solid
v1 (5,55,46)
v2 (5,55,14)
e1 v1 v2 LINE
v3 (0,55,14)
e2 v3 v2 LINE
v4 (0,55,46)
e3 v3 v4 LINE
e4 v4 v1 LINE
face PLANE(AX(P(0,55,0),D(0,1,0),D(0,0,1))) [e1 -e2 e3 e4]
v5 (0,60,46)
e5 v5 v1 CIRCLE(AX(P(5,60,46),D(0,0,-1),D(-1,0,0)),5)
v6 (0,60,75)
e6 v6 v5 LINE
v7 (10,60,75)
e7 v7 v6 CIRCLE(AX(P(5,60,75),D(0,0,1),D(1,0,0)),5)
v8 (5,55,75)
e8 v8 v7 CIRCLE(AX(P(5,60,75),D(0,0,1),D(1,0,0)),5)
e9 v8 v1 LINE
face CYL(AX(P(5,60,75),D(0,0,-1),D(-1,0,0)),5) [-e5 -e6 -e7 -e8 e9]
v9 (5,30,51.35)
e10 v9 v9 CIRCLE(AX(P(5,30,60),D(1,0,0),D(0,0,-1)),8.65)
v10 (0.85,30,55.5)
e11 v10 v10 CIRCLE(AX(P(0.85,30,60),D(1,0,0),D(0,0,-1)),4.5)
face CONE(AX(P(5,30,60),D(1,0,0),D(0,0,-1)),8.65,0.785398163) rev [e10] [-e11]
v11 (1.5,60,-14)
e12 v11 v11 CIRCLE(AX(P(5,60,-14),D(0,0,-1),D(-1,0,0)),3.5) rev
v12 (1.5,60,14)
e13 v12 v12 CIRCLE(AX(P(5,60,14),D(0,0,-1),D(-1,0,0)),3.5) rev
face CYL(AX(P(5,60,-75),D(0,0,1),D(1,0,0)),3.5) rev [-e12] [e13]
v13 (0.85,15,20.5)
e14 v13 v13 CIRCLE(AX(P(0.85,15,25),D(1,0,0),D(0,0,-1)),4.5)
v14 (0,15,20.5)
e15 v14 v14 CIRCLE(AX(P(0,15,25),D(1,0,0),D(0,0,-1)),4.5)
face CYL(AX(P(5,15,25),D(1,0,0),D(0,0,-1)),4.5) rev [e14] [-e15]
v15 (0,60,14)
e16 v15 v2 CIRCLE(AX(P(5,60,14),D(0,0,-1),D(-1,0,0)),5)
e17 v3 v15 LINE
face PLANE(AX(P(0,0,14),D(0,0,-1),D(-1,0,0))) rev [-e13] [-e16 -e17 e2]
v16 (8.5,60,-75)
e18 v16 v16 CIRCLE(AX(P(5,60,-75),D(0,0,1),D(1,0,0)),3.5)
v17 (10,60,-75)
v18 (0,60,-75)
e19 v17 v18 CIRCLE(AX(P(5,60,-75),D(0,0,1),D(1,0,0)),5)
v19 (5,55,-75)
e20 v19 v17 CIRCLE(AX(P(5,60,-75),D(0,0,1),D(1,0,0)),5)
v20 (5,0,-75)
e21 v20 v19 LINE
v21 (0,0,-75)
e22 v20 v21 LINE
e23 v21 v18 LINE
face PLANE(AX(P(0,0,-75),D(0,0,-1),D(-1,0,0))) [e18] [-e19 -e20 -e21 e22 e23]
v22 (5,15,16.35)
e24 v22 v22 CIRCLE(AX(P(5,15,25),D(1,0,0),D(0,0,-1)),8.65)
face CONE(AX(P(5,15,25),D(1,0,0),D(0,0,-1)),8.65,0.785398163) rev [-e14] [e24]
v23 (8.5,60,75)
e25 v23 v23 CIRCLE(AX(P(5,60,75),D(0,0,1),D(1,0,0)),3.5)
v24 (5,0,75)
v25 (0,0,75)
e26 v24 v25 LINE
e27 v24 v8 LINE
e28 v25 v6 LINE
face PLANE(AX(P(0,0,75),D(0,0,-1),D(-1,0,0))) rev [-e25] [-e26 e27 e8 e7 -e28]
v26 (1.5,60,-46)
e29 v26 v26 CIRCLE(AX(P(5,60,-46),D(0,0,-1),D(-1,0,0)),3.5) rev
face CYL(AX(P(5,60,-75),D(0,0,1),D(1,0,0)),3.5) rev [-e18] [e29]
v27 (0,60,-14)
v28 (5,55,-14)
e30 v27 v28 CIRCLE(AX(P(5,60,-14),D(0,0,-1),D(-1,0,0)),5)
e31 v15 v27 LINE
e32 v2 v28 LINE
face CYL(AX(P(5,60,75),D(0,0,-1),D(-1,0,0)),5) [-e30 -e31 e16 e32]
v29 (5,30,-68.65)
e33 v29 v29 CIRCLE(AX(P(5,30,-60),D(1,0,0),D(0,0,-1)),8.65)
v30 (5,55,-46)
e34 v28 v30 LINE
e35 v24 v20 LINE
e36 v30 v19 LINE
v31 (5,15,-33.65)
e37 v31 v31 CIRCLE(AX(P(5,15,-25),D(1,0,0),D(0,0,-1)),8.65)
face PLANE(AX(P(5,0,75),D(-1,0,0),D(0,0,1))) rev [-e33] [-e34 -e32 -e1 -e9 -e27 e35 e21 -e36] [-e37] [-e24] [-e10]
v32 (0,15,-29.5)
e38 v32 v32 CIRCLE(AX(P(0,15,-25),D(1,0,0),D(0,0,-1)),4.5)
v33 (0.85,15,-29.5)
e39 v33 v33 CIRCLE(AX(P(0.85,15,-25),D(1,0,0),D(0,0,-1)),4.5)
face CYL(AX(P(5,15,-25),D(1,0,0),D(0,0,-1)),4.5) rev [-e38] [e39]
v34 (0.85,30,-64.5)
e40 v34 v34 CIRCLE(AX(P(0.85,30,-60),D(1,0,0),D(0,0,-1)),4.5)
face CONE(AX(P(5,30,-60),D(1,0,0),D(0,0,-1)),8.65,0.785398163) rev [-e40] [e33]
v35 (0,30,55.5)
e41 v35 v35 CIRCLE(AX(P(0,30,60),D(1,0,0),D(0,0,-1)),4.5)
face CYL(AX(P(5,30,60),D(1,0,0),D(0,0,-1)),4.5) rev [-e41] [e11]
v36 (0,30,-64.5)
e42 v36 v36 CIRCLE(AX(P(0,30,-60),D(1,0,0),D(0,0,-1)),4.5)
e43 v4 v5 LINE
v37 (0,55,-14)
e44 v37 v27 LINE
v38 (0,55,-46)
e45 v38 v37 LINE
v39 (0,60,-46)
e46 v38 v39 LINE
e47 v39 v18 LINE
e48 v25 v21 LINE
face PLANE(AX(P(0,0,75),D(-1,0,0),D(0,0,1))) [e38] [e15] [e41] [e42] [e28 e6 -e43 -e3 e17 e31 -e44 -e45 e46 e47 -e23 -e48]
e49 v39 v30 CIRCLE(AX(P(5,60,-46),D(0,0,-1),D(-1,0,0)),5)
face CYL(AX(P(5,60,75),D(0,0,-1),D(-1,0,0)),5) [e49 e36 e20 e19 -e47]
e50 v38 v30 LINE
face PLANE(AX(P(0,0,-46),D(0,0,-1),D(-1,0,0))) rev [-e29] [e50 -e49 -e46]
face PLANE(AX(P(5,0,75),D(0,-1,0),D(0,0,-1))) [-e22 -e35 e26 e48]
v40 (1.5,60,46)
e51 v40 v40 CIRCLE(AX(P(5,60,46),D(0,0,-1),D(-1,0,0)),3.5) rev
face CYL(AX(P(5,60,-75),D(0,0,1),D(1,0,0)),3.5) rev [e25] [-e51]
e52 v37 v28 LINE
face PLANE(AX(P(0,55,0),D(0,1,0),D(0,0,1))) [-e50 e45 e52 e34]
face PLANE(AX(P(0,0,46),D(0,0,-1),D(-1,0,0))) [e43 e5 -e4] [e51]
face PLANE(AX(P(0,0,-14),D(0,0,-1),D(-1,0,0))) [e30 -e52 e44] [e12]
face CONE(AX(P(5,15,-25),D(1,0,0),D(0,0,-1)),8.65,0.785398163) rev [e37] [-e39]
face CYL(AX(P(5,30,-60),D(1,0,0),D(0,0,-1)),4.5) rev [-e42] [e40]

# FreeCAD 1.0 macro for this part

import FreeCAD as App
import Part
import Sketcher

V = App.Vector
Q = App.Units.Quantity


def add_polygon(sketch, points):
    """Adds a closed chain of lines whose ends are joined by coincident constraints."""
    first, n = sketch.GeometryCount, len(points)
    for a, b in zip(points, points[1:] + points[:1]):
        sketch.addGeometry(Part.LineSegment(App.Vector(*a, 0), App.Vector(*b, 0)), False)
    for i in range(n):
        sketch.addConstraint(Sketcher.Constraint("Coincident", first + i, 2, first + (i + 1) % n, 1))

doc = App.newDocument("Part")
body = doc.addObject("PartDesign::Body", "Body")

sketch1 = body.newObject("Sketcher::SketchObject", "Sketch")
sketch1.AttachmentSupport = (doc.getObject("XY_Plane"), [""])
sketch1.MapMode = "FlatFace"
add_polygon(sketch1, [(0, 60), (0, 0), (5, 0), (5, 60)])
sketch1.addConstraint([
    Sketcher.Constraint("Vertical", 0),
    Sketcher.Constraint("Horizontal", 1),
    Sketcher.Constraint("Vertical", 2),
    Sketcher.Constraint("Horizontal", 3),
    Sketcher.Constraint("Coincident", 0, 2, -1, 1),
    Sketcher.Constraint("DistanceX", 1, 1, 1, 2, 5.0),
    Sketcher.Constraint("DistanceY", 0, 2, 0, 1, 60.0),
])
pad1 = body.newObject("PartDesign::Pad", "Pad")
pad1.Profile = sketch1
pad1.Length = 150
pad1.Midplane = True

sketch2 = body.newObject("Sketcher::SketchObject", "Sketch001")
sketch2.AttachmentSupport = (doc.getObject("XY_Plane"), [""])
sketch2.MapMode = "FlatFace"
sketch2.AttachmentOffset = App.Placement(V(0, 0, 75), App.Rotation())
sketch2.addGeometry(Part.Circle(V(5, 60, 0), V(0, 0, 1), 5), False)
sketch2.addConstraint([
    Sketcher.Constraint("Diameter", 0, 10.0),
    Sketcher.Constraint("DistanceX", -1, 1, 0, 3, 5.0),
    Sketcher.Constraint("DistanceY", -1, 1, 0, 3, 60.0),
])

sketch3 = body.newObject("Sketcher::SketchObject", "Sketch002")
sketch3.AttachmentSupport = (doc.getObject("XZ_Plane"), [""])
sketch3.MapMode = "FlatFace"
sketch3.AttachmentOffset = App.Placement(V(0, 0, -60), App.Rotation())
sketch3.addGeometry(Part.LineSegment(V(5, 75, 0), V(5, -75, 0)), False)
sketch3.addConstraint([
    Sketcher.Constraint("Vertical", 0),
    Sketcher.Constraint("DistanceY", 0, 2, 0, 1, 150.0),
    Sketcher.Constraint("DistanceX", -1, 1, 0, 1, 5.0),
    Sketcher.Constraint("DistanceY", -1, 1, 0, 1, 75.0),
])
doc.recompute()

additivepipe = body.newObject("PartDesign::AdditivePipe", "AdditivePipe")
additivepipe.Profile = sketch2
additivepipe.Spine = (sketch3, ["Edge1"])

sketch4 = body.newObject("Sketcher::SketchObject", "Sketch003")
sketch4.AttachmentSupport = (doc.getObject("XY_Plane"), [""])
sketch4.MapMode = "FlatFace"
sketch4.AttachmentOffset = App.Placement(V(0, 0, 75), App.Rotation())
sketch4.addGeometry(Part.Circle(V(5, 60, 0), V(0, 0, 1), 3.5), False)
sketch4.addConstraint([
    Sketcher.Constraint("Diameter", 0, 7.0),
    Sketcher.Constraint("DistanceX", -1, 1, 0, 3, 5.0),
    Sketcher.Constraint("DistanceY", -1, 1, 0, 3, 60.0),
])
pocket1 = body.newObject("PartDesign::Pocket", "Pocket")
pocket1.Profile = sketch4
pocket1.Type = "ThroughAll"

sketch5 = body.newObject("Sketcher::SketchObject", "Sketch004")
sketch5.AttachmentSupport = (doc.getObject("XZ_Plane"), [""])
sketch5.MapMode = "FlatFace"
sketch5.AttachmentOffset = App.Placement(V(0, 0, -15), App.Rotation())
add_polygon(sketch5, [(0, 25), (5, 25), (5, 16.4), (0.8, 20.5), (0, 20.5)])
sketch5.addGeometry(Part.LineSegment(V(5, 25, 0), V(0, 25, 0)), True)
sketch5.addConstraint([
    Sketcher.Constraint("Horizontal", 0),
    Sketcher.Constraint("Vertical", 1),
    Sketcher.Constraint("Horizontal", 3),
    Sketcher.Constraint("Vertical", 4),
    Sketcher.Constraint("Horizontal", 5),
    Sketcher.Constraint("Coincident", 5, 1, 0, 2),
    Sketcher.Constraint("PointOnObject", 3, 2, -2),
    Sketcher.Constraint("PointOnObject", 5, 2, -2),
    Sketcher.Constraint("DistanceX", 0, 1, 0, 2, 5.0),
    Sketcher.Constraint("Angle", 2, Q("135 deg")),
    Sketcher.Constraint("DistanceY", 4, 1, 4, 2, 4.5),
    Sketcher.Constraint("DistanceY", -1, 1, 0, 2, 25.0),
    Sketcher.Constraint("DistanceX", 3, 2, 3, 1, 0.85),
])
groove = body.newObject("PartDesign::Groove", "Groove")
groove.Profile = sketch5
groove.ReferenceAxis = (sketch5, ["Axis0"])
groove.Angle = 360
doc.recompute()

datumline = body.newObject("PartDesign::Line", "DatumLine")
datumline.Placement = App.Placement(V(0, 0, 0), App.Rotation(V(0, 0, 1), V(0, 0.393919299, 0.91914503)))
linearpattern = body.newObject("PartDesign::LinearPattern", "LinearPattern")
linearpattern.Originals = [groove]
linearpattern.Direction = (datumline, [""])
linearpattern.Mode = "offset"
linearpattern.Offset = 38.078866
linearpattern.Occurrences = 2
body.Tip = linearpattern
doc.recompute()

mirrored = body.newObject("PartDesign::Mirrored", "Mirrored")
mirrored.Originals = [groove]
mirrored.MirrorPlane = (doc.getObject("XY_Plane"), [""])
body.Tip = mirrored

sketch6 = body.newObject("Sketcher::SketchObject", "Sketch005")
sketch6.AttachmentSupport = (doc.getObject("XZ_Plane"), [""])
sketch6.MapMode = "FlatFace"
sketch6.AttachmentOffset = App.Placement(V(0, 0, -30), App.Rotation())
add_polygon(sketch6, [(5, -60), (0, -60), (0, -55.5), (0.8, -55.5), (5, -51.4)])
sketch6.addGeometry(Part.LineSegment(V(0, -60, 0), V(5, -60, 0)), True)
sketch6.addConstraint([
    Sketcher.Constraint("Horizontal", 0),
    Sketcher.Constraint("Vertical", 1),
    Sketcher.Constraint("Horizontal", 2),
    Sketcher.Constraint("Vertical", 4),
    Sketcher.Constraint("Horizontal", 5),
    Sketcher.Constraint("Coincident", 5, 1, 0, 2),
    Sketcher.Constraint("PointOnObject", 0, 2, -2),
    Sketcher.Constraint("Vertical", 3, 2, 5, 2),
    Sketcher.Constraint("DistanceX", 0, 2, 0, 1, 5.0),
    Sketcher.Constraint("Angle", 3, Q("45 deg")),
    Sketcher.Constraint("DistanceY", 1, 1, 1, 2, 4.5),
    Sketcher.Constraint("DistanceY", 0, 2, -1, 1, 60.0),
    Sketcher.Constraint("DistanceX", 2, 1, 2, 2, 0.85),
])
groove2 = body.newObject("PartDesign::Groove", "Groove001")
groove2.Profile = sketch6
groove2.ReferenceAxis = (sketch6, ["Axis0"])
groove2.Angle = 360

sketch7 = body.newObject("Sketcher::SketchObject", "Sketch006")
sketch7.AttachmentSupport = (doc.getObject("YZ_Plane"), [""])
sketch7.MapMode = "FlatFace"
sketch7.AttachmentOffset = App.Placement(V(0, 0, 5), App.Rotation())
add_polygon(sketch7, [(65, 46), (55, 46), (55, 14), (65, 14)])
add_polygon(sketch7, [(65, -14), (55, -14), (55, -46), (65, -46)])
sketch7.addConstraint([
    Sketcher.Constraint("Horizontal", 0),
    Sketcher.Constraint("Vertical", 1),
    Sketcher.Constraint("Horizontal", 2),
    Sketcher.Constraint("Vertical", 3),
    Sketcher.Constraint("Horizontal", 4),
    Sketcher.Constraint("Vertical", 5),
    Sketcher.Constraint("Horizontal", 6),
    Sketcher.Constraint("Vertical", 7),
    Sketcher.Constraint("Symmetric", 1, 2, 4, 2, -1),
    Sketcher.Constraint("Symmetric", 3, 2, 6, 2, -1),
    Sketcher.Constraint("DistanceX", 0, 2, 0, 1, 10.0),
    Sketcher.Constraint("DistanceY", 1, 2, 1, 1, 32.0),
    Sketcher.Constraint("DistanceX", -1, 1, 0, 2, 55.0),
    Sketcher.Constraint("DistanceY", -1, 1, 0, 2, 46.0),
])
pocket2 = body.newObject("PartDesign::Pocket", "Pocket001")
pocket2.Profile = sketch7
pocket2.Type = "ThroughAll"
pocket2.Midplane = True

doc.recompute()
